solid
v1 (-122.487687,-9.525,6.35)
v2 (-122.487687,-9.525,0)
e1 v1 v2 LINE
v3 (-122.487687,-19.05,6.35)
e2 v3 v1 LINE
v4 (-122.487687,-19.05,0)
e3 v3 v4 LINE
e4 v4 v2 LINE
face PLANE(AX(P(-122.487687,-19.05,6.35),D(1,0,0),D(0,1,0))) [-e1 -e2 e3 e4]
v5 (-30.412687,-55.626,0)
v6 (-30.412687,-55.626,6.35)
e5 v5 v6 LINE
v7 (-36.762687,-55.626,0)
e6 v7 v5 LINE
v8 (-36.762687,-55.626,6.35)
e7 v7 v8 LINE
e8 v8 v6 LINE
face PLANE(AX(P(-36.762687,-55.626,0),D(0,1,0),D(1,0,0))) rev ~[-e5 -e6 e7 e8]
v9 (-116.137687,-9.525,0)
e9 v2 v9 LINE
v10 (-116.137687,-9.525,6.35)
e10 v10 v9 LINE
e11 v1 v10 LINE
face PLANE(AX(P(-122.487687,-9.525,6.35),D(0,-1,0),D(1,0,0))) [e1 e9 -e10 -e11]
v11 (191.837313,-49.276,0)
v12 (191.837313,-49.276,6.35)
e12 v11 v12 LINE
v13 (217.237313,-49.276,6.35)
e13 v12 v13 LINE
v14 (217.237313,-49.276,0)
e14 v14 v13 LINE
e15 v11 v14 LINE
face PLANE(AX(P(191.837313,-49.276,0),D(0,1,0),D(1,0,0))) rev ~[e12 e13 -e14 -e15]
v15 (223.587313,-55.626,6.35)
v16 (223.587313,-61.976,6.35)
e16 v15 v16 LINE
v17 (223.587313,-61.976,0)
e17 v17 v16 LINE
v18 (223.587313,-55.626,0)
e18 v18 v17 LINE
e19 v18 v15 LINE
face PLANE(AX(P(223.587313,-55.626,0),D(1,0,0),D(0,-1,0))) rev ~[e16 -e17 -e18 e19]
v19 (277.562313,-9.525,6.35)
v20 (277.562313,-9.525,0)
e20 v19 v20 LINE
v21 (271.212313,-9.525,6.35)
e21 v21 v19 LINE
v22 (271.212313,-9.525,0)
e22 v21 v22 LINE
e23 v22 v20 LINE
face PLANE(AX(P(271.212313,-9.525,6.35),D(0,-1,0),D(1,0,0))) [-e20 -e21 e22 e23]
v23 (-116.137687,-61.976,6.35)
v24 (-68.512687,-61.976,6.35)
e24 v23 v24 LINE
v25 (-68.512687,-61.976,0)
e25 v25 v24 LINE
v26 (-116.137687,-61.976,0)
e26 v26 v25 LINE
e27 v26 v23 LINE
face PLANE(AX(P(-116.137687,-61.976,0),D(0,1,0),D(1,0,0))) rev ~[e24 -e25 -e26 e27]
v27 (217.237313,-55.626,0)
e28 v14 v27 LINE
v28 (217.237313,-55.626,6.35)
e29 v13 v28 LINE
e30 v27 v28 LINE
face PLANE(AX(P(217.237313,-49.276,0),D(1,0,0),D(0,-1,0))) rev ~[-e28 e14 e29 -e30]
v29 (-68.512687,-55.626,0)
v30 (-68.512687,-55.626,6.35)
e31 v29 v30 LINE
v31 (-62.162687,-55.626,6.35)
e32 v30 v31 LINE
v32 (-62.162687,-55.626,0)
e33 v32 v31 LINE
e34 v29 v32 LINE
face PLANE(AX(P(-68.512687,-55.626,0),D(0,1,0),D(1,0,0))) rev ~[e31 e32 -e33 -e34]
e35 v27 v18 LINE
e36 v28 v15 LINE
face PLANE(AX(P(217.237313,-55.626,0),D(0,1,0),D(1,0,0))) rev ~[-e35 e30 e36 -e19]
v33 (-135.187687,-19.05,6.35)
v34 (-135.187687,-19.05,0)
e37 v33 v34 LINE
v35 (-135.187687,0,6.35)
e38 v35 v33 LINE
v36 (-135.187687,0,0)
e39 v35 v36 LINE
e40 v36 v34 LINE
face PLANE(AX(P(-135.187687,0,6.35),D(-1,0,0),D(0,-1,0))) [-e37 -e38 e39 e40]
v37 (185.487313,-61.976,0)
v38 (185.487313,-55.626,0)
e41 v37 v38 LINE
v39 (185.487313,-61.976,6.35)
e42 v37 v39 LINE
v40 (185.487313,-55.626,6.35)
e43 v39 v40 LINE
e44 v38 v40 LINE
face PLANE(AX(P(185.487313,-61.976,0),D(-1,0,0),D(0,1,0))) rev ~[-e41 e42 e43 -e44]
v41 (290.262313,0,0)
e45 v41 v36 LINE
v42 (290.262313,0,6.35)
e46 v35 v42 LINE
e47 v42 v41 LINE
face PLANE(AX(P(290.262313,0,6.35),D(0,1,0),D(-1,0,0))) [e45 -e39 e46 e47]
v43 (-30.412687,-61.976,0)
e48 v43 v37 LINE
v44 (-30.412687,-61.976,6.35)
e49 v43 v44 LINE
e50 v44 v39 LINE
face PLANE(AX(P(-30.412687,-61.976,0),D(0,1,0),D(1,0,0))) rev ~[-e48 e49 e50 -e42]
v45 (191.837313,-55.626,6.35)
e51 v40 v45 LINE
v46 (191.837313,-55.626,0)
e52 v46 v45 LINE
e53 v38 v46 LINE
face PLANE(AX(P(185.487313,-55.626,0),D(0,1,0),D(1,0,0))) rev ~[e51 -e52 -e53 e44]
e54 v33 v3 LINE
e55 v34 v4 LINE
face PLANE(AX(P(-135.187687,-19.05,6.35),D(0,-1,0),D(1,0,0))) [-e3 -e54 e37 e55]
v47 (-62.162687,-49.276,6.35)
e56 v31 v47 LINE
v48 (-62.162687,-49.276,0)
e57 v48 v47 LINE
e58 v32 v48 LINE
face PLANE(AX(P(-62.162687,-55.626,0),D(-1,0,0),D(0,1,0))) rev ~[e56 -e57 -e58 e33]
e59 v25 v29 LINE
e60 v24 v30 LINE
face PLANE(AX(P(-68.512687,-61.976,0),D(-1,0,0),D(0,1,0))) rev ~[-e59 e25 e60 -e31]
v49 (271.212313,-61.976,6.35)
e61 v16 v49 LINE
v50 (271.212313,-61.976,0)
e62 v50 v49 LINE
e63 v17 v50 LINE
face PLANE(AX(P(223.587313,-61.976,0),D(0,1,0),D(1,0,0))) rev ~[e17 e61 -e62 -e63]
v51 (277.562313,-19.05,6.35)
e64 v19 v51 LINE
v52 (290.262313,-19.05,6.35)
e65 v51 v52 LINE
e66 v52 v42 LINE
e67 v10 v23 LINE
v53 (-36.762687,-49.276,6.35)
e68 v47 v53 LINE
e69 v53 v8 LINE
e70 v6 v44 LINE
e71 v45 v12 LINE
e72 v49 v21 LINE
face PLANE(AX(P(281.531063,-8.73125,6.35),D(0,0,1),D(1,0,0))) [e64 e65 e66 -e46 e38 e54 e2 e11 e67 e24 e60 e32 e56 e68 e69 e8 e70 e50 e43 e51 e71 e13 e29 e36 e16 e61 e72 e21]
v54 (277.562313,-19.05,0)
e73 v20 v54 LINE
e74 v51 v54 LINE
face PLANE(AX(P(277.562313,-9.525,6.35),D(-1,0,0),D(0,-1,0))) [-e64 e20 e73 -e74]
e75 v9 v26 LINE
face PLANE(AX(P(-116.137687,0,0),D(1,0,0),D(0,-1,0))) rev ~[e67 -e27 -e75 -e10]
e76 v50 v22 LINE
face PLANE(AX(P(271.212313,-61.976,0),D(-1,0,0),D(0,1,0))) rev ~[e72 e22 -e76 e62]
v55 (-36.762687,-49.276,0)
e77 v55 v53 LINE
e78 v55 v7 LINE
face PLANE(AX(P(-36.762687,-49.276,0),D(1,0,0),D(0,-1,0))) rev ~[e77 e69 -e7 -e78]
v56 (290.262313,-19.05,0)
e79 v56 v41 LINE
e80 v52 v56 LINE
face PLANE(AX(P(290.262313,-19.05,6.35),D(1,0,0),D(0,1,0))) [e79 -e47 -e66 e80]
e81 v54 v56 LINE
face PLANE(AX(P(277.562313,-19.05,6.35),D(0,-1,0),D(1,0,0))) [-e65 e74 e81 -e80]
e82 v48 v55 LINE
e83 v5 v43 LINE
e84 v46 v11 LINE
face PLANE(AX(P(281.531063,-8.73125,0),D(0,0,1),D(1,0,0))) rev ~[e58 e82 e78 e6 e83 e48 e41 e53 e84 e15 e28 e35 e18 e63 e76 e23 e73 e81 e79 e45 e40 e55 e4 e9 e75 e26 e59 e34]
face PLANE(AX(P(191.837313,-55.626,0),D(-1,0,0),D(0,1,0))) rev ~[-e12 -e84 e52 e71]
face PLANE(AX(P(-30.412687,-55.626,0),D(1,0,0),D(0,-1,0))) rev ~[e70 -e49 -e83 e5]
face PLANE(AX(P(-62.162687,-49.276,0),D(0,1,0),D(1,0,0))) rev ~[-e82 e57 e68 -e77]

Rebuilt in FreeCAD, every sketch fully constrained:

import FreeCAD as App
import Part
import Sketcher
from FreeCAD import Vector
Q = App.Units.Quantity


def add_polygon(sketch, points):
    """Adds a closed chain of lines whose ends are joined by coincident constraints."""
    first, n = sketch.GeometryCount, len(points)
    for a, b in zip(points, points[1:] + points[:1]):
        sketch.addGeometry(Part.LineSegment(App.Vector(*a, 0), App.Vector(*b, 0)), False)
    for i in range(n):
        sketch.addConstraint(Sketcher.Constraint("Coincident", first + i, 2, first + (i + 1) % n, 1))

doc = App.newDocument("Part")
body = doc.addObject("PartDesign::Body", "Body")

# Sketch on XY plane
sketch1 = body.newObject("Sketcher::SketchObject", "Sketch")
sketch1.AttachmentSupport = (doc.getObject("XY_Plane"), [""])
sketch1.MapMode = "FlatFace"
add_polygon(sketch1, [(-116.137687, 0), (-116.137687, -61.976), (-68.512687, -61.976), (-68.512687, -55.626), (-62.162687, -55.626), (-62.162687, -49.276), (-36.762687, -49.276), (-36.762687, -55.626), (-30.412687, -55.626), (-30.412687, -61.976), (185.487313, -61.976), (185.487313, -55.626), (191.837313, -55.626), (191.837313, -49.276), (217.237313, -49.276), (217.237313, -55.626), (223.587313, -55.626), (223.587313, -61.976), (271.212313, -61.976), (271.212313, 0)])  # lines 0-19
sketch1.addConstraint(Sketcher.Constraint("Vertical", 0))
sketch1.addConstraint(Sketcher.Constraint("Horizontal", 1))
sketch1.addConstraint(Sketcher.Constraint("Vertical", 2))
sketch1.addConstraint(Sketcher.Constraint("Horizontal", 3))
sketch1.addConstraint(Sketcher.Constraint("Vertical", 4))
sketch1.addConstraint(Sketcher.Constraint("Horizontal", 5))
sketch1.addConstraint(Sketcher.Constraint("Vertical", 6))
sketch1.addConstraint(Sketcher.Constraint("Horizontal", 7))
sketch1.addConstraint(Sketcher.Constraint("Vertical", 8))
sketch1.addConstraint(Sketcher.Constraint("Horizontal", 9))
sketch1.addConstraint(Sketcher.Constraint("Vertical", 10))
sketch1.addConstraint(Sketcher.Constraint("Horizontal", 11))
sketch1.addConstraint(Sketcher.Constraint("Vertical", 12))
sketch1.addConstraint(Sketcher.Constraint("Horizontal", 13))
sketch1.addConstraint(Sketcher.Constraint("Vertical", 14))
sketch1.addConstraint(Sketcher.Constraint("Horizontal", 15))
sketch1.addConstraint(Sketcher.Constraint("Vertical", 16))
sketch1.addConstraint(Sketcher.Constraint("Horizontal", 17))
sketch1.addConstraint(Sketcher.Constraint("Vertical", 18))
sketch1.addConstraint(Sketcher.Constraint("Horizontal", 19))
sketch1.addConstraint(Sketcher.Constraint("PointOnObject", 18, 2, -1))
sketch1.addConstraint(Sketcher.Constraint("Horizontal", 3, 2, 6, 2))
sketch1.addConstraint(Sketcher.Constraint("Horizontal", 1, 2, 8, 2))
sketch1.addConstraint(Sketcher.Constraint("Horizontal", 7, 2, 10, 2))
sketch1.addConstraint(Sketcher.Constraint("Horizontal", 5, 2, 12, 2))
sketch1.addConstraint(Sketcher.Constraint("Horizontal", 11, 2, 14, 2))
sketch1.addConstraint(Sketcher.Constraint("Horizontal", 9, 2, 16, 2))
sketch1.addConstraint(Sketcher.Constraint("Equal", 3, 7))
sketch1.addConstraint(Sketcher.Constraint("Equal", 7, 11))
sketch1.addConstraint(Sketcher.Constraint("Equal", 5, 13))
sketch1.addConstraint(Sketcher.Constraint("Equal", 11, 15))
sketch1.addConstraint(Sketcher.Constraint("Equal", 1, 17))
sketch1.addConstraint(Sketcher.Constraint("Equal", 15, 2))
sketch1.addConstraint(Sketcher.Constraint("Equal", 2, 4))
sketch1.addConstraint(Sketcher.Constraint("DistanceX", 5, 1, 5, 2, Q("1 in")))
sketch1.addConstraint(Sketcher.Constraint("DistanceX", 9, 1, 9, 2, Q("8.5 in")))
sketch1.addConstraint(Sketcher.Constraint("DistanceX", 6, 2, 11, 2, Q("9 in")))
sketch1.addConstraint(Sketcher.Constraint("DistanceX", 19, 2, 19, 1, Q("15.25 in")))
sketch1.addConstraint(Sketcher.Constraint("DistanceY", 0, 2, 0, 1, Q("2.44 in")))
sketch1.addConstraint(Sketcher.Constraint("DistanceX", 0, 2, -1, 1, Q("116.137687 mm")))
pad1 = body.newObject("PartDesign::Pad", "Pad")
pad1.Profile = sketch1
pad1.Length = Q("0.25 in")

# Sketch on XY plane
sketch2 = body.newObject("Sketcher::SketchObject", "Sketch001")
sketch2.AttachmentSupport = (doc.getObject("XY_Plane"), [""])
sketch2.MapMode = "FlatFace"
sketch2.AttachmentOffset = App.Placement(Vector(0, 0, 0.25 * 25.4), App.Rotation())
add_polygon(sketch2, [(290.262313, 0), (271.212313, 0), (271.212313, -9.525), (277.562313, -9.525), (277.562313, -19.05), (290.262313, -19.05)])  # lines 0-5
add_polygon(sketch2, [(-116.137687, -9.525), (-116.137687, 0), (-135.187687, 0), (-135.187687, -19.05), (-122.487687, -19.05), (-122.487687, -9.525)])  # lines 6-11
sketch2.addConstraint(Sketcher.Constraint("Horizontal", 0))
sketch2.addConstraint(Sketcher.Constraint("Vertical", 1))
sketch2.addConstraint(Sketcher.Constraint("Horizontal", 2))
sketch2.addConstraint(Sketcher.Constraint("Vertical", 3))
sketch2.addConstraint(Sketcher.Constraint("Horizontal", 4))
sketch2.addConstraint(Sketcher.Constraint("Vertical", 5))
sketch2.addConstraint(Sketcher.Constraint("Vertical", 6))
sketch2.addConstraint(Sketcher.Constraint("Horizontal", 7))
sketch2.addConstraint(Sketcher.Constraint("Vertical", 8))
sketch2.addConstraint(Sketcher.Constraint("Horizontal", 9))
sketch2.addConstraint(Sketcher.Constraint("Vertical", 10))
sketch2.addConstraint(Sketcher.Constraint("Horizontal", 11))
sketch2.addConstraint(Sketcher.Constraint("PointOnObject", 0, 2, -1))
sketch2.addConstraint(Sketcher.Constraint("PointOnObject", 6, 2, -1))
sketch2.addConstraint(Sketcher.Constraint("Horizontal", 4, 2, 8, 2))
sketch2.addConstraint(Sketcher.Constraint("Horizontal", 2, 2, 10, 2))
sketch2.addConstraint(Sketcher.Constraint("Equal", 0, 7))
sketch2.addConstraint(Sketcher.Constraint("Equal", 4, 9))
sketch2.addConstraint(Sketcher.Constraint("Equal", 1, 3))
sketch2.addConstraint(Sketcher.Constraint("Equal", 7, 5))
sketch2.addConstraint(Sketcher.Constraint("DistanceX", 4, 1, 4, 2, Q("0.5 in")))
sketch2.addConstraint(Sketcher.Constraint("DistanceX", 6, 2, 5, 2, Q("16 in")))
sketch2.addConstraint(Sketcher.Constraint("DistanceX", 0, 2, 0, 1, Q("0.75 in")))
sketch2.addConstraint(Sketcher.Constraint("DistanceX", -1, 1, 0, 2, Q("271.212313 mm")))
pad2 = body.newObject("PartDesign::Pad", "Pad001")
pad2.Profile = sketch2
pad2.Length = Q("0.25 in")
pad2.Reversed = True

doc.recompute()
